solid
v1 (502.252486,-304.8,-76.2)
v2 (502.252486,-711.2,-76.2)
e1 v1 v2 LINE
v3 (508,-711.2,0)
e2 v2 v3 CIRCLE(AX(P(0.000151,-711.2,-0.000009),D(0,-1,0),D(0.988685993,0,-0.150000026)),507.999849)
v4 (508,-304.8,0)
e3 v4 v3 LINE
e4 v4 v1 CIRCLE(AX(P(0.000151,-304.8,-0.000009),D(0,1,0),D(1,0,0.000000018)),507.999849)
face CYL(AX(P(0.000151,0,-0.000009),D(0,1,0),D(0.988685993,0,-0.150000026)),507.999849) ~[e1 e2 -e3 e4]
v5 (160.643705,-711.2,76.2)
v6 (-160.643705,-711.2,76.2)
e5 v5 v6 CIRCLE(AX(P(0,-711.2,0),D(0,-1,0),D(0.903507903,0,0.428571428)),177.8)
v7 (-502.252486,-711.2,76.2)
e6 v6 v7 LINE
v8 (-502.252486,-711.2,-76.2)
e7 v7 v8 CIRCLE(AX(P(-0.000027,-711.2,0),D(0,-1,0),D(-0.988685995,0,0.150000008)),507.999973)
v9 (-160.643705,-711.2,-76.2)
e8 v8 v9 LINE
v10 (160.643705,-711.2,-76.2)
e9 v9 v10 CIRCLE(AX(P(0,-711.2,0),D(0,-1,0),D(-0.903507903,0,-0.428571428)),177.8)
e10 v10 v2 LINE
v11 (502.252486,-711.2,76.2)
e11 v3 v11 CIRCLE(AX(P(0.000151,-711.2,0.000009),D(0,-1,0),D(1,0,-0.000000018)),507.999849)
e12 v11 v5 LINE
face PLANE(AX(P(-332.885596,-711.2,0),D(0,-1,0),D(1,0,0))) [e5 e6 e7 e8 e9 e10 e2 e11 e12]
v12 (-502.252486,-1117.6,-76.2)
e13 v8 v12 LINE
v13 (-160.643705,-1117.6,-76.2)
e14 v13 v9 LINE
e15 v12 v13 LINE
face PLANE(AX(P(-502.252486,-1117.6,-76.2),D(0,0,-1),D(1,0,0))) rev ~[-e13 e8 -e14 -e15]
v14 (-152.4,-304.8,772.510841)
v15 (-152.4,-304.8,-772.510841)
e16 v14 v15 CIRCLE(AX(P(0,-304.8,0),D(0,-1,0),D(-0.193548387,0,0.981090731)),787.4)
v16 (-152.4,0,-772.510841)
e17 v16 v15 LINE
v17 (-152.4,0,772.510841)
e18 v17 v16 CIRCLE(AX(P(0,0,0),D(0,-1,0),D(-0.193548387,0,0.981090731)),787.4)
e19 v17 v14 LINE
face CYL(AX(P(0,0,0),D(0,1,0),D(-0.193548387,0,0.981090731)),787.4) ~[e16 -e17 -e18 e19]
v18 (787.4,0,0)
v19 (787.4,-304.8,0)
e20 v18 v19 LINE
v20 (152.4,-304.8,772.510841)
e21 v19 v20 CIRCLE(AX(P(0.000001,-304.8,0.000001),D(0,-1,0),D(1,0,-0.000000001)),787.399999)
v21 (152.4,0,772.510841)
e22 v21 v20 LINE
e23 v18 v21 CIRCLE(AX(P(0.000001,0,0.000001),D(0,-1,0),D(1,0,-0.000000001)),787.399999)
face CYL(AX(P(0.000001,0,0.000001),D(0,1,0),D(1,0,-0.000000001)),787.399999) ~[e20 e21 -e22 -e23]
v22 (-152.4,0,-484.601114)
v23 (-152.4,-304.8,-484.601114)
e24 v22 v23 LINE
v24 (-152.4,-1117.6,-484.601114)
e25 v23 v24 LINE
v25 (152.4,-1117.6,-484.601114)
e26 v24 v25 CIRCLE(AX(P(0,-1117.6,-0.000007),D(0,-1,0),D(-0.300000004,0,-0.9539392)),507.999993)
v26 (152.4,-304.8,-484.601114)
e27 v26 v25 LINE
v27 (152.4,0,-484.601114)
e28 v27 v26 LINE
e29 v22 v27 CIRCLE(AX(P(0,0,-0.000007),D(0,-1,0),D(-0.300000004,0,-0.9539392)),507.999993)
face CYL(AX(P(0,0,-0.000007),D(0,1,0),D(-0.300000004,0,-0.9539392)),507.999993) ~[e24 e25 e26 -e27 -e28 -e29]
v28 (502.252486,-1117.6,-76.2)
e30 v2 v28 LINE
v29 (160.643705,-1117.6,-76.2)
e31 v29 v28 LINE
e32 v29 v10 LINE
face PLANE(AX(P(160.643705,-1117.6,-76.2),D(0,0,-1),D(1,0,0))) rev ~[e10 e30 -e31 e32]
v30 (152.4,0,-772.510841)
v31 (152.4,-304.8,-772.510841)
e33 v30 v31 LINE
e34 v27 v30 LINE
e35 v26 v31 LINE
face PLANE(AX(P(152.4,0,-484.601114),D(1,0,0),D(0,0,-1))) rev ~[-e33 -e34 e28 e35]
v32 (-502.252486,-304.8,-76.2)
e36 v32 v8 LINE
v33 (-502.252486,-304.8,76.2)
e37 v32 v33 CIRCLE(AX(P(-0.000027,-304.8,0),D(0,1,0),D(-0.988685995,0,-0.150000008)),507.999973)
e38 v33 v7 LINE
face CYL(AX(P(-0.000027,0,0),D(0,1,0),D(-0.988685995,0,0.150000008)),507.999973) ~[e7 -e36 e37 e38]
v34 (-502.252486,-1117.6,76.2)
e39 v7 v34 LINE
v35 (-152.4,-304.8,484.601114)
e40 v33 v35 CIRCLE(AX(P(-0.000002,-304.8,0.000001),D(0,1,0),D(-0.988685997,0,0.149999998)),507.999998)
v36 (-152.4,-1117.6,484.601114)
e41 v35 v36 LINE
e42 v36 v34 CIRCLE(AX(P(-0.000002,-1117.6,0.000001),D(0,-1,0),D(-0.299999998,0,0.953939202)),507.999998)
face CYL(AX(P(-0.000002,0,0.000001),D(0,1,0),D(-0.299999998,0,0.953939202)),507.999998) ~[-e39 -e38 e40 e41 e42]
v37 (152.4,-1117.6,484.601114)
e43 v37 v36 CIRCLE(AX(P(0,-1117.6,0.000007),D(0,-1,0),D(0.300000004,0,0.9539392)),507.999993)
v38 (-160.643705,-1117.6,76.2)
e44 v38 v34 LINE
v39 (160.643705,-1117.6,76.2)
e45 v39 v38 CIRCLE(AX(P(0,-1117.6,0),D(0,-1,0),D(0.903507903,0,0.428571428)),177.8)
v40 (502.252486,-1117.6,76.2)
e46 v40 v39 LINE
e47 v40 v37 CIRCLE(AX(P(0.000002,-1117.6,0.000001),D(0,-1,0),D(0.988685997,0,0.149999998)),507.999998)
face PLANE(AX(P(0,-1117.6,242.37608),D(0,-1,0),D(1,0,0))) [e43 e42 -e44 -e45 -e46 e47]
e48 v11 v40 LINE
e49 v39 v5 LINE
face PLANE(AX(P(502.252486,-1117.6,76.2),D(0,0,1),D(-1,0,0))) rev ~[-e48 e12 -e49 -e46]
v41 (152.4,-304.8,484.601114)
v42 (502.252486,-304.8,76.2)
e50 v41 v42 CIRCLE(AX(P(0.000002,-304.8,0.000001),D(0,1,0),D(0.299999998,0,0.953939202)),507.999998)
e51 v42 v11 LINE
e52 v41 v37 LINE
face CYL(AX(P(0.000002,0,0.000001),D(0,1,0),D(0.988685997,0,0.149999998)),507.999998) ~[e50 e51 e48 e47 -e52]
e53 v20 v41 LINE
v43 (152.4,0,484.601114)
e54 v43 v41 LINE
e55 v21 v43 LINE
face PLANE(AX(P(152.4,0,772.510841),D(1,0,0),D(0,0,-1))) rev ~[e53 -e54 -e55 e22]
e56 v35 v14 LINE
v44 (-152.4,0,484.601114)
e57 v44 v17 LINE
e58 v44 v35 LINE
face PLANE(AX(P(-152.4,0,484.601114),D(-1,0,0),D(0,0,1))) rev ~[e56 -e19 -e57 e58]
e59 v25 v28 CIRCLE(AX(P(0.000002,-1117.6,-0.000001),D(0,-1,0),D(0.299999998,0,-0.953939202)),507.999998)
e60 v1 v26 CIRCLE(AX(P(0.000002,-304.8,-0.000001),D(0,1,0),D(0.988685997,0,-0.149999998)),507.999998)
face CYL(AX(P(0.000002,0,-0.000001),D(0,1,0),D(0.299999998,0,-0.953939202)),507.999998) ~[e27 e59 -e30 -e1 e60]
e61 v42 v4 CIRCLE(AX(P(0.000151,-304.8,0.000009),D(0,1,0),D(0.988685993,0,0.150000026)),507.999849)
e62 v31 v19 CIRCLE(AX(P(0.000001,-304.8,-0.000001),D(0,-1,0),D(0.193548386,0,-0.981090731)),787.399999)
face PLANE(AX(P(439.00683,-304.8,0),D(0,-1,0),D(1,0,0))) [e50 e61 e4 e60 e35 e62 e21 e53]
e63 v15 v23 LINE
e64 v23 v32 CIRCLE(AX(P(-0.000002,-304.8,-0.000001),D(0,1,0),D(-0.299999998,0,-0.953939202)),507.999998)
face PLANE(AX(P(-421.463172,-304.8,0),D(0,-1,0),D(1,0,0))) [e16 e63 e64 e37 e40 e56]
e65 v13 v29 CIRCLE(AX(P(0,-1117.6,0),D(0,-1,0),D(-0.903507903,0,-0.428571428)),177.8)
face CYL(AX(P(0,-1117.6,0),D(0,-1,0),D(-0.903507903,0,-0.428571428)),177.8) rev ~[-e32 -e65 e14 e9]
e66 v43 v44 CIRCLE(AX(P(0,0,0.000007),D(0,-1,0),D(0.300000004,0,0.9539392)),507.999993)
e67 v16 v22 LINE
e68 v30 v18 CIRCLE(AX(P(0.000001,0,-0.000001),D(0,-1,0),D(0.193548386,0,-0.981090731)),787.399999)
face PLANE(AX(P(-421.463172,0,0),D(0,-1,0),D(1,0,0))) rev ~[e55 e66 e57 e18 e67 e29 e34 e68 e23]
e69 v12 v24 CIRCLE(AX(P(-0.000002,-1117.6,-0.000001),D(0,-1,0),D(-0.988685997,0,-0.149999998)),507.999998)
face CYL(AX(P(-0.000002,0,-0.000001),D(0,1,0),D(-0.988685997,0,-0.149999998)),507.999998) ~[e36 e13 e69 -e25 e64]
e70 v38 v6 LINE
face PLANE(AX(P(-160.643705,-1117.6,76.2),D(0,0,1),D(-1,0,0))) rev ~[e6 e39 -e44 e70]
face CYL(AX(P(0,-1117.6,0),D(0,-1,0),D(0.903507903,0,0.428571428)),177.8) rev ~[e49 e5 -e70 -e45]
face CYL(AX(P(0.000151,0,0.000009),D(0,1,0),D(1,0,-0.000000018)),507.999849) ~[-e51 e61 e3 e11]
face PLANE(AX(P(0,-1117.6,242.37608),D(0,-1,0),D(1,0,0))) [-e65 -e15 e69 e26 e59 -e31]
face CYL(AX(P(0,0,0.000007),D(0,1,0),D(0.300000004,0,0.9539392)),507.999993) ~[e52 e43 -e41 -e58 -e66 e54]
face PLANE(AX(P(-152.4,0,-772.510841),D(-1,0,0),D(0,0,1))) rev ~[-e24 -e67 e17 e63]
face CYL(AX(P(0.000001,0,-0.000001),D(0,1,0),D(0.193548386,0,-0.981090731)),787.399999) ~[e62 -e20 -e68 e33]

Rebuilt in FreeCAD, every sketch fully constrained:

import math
import FreeCAD as App
import Part
import Sketcher

V = App.Vector
Q = App.Units.Quantity

doc = App.newDocument("Part")
body = doc.addObject("PartDesign::Body", "Body")

# Sketch on XZ plane
sketch1 = body.newObject("Sketcher::SketchObject", "Sketch")
sketch1.AttachmentSupport = (doc.getObject("XZ_Plane"), [""])
sketch1.MapMode = "FlatFace"
sketch1.addGeometry([
    Part.ArcOfCircle(Part.Circle(V(0, 0, 0), V(0, 0, 1), 508), math.radians(9), math.radians(73)),  # 0
    Part.ArcOfCircle(Part.Circle(V(0, 0, 0), V(0, 0, 1), 508), math.radians(73), math.radians(107)),  # 1
    Part.ArcOfCircle(Part.Circle(V(0, 0, 0), V(0, 0, 1), 508), math.radians(107), math.radians(171)),  # 2
    Part.ArcOfCircle(Part.Circle(V(0, 0, 0), V(0, 0, 1), 508), math.radians(171.37), math.radians(188.63)),  # 3
    Part.ArcOfCircle(Part.Circle(V(0, 0, 0), V(0, 0, 1), 508), math.radians(-171), math.radians(-107)),  # 4
    Part.ArcOfCircle(Part.Circle(V(0, 0, 0), V(0, 0, 1), 508), math.radians(-107), math.radians(-73)),  # 5
    Part.ArcOfCircle(Part.Circle(V(0, 0, 0), V(0, 0, 1), 508), math.radians(-73), math.radians(-9)),  # 6
    Part.ArcOfCircle(Part.Circle(V(0, 0, 0), V(0, 0, 1), 508), math.radians(-8.63), math.radians(0)),  # 7
    Part.ArcOfCircle(Part.Circle(V(0, 0, 0), V(0, 0, 1), 508), math.radians(0), math.radians(8.63)),  # 8
], False)
sketch1.addConstraint([
    Sketcher.Constraint("Coincident", 0, 2, 1, 1),
    Sketcher.Constraint("Coincident", 1, 2, 2, 1),
    Sketcher.Constraint("Coincident", 2, 2, 3, 1),
    Sketcher.Constraint("Coincident", 3, 2, 4, 1),
    Sketcher.Constraint("Coincident", 4, 2, 5, 1),
    Sketcher.Constraint("Coincident", 5, 2, 6, 1),
    Sketcher.Constraint("Coincident", 6, 2, 7, 1),
    Sketcher.Constraint("Coincident", 7, 2, 8, 1),
    Sketcher.Constraint("Coincident", 8, 2, 0, 1),
    Sketcher.Constraint("Coincident", 0, 3, -1, 1),
    Sketcher.Constraint("Coincident", 1, 3, -1, 1),
    Sketcher.Constraint("Coincident", 2, 3, -1, 1),
    Sketcher.Constraint("Coincident", 4, 3, -1, 1),
    Sketcher.Constraint("Coincident", 5, 3, -1, 1),
    Sketcher.Constraint("Coincident", 6, 3, -1, 1),
    Sketcher.Constraint("Equal", 2, 4),
    Sketcher.Constraint("Equal", 7, 8),
    Sketcher.Constraint("PointOnObject", 7, 2, -1),
    Sketcher.Constraint("Horizontal", 0, 2, 1, 2),
    Sketcher.Constraint("Horizontal", 4, 2, 5, 2),
    Sketcher.Constraint("Horizontal", 3, 2, 6, 2),
    Sketcher.Constraint("Horizontal", 2, 2, 8, 2),
    Sketcher.Constraint("Vertical", 2, 2, 3, 2),
    Sketcher.Constraint("Vertical", 1, 2, 4, 2),
    Sketcher.Constraint("Radius", 0, Q("19.9999999 in")),
    Sketcher.Constraint("DistanceX", -1, 1, 0, 2, Q("6 in")),
    Sketcher.Constraint("DistanceY", -1, 1, 2, 2, Q("3 in")),
    Sketcher.Constraint("DistanceX", -1, 1, 7, 2, Q("20 in")),
    Sketcher.Constraint("Radius", 7, 507.999849),
    Sketcher.Constraint("Radius", 3, 507.999973),
])
pad1 = body.newObject("PartDesign::Pad", "Pad")
pad1.Profile = sketch1
pad1.Length = Q("44 in")

# Sketch on XZ plane
sketch2 = body.newObject("Sketcher::SketchObject", "Sketch001")
sketch2.AttachmentSupport = (doc.getObject("XZ_Plane"), [""])
sketch2.MapMode = "FlatFace"
sketch2.addGeometry([
    Part.LineSegment(V(-152, 485, 0), V(-152, 773, 0)),  # 0
    Part.ArcOfCircle(Part.Circle(V(0, 0, 0), V(0, 0, 1), 787), math.radians(101), math.radians(259)),  # 1
    Part.LineSegment(V(-152, -773, 0), V(-152, -485, 0)),  # 2
    Part.ArcOfCircle(Part.Circle(V(0, 0, 0), V(0, 0, 1), 508), math.radians(-171), math.radians(-107)),  # 3
    Part.ArcOfCircle(Part.Circle(V(0, 0, 0), V(0, 0, 1), 508), math.radians(171.37), math.radians(188.63)),  # 4
    Part.ArcOfCircle(Part.Circle(V(0, 0, 0), V(0, 0, 1), 508), math.radians(107), math.radians(171)),  # 5
    Part.ArcOfCircle(Part.Circle(V(0, 0, 0), V(0, 0, 1), 787), math.radians(-79), math.radians(0)),  # 6
    Part.ArcOfCircle(Part.Circle(V(0, 0, 0), V(0, 0, 1), 787), math.radians(0), math.radians(79)),  # 7
    Part.LineSegment(V(152, 773, 0), V(152, 485, 0)),  # 8
    Part.ArcOfCircle(Part.Circle(V(0, 0, 0), V(0, 0, 1), 508), math.radians(9), math.radians(73)),  # 9
    Part.ArcOfCircle(Part.Circle(V(0, 0, 0), V(0, 0, 1), 508), math.radians(0), math.radians(8.63)),  # 10
    Part.ArcOfCircle(Part.Circle(V(0, 0, 0), V(0, 0, 1), 508), math.radians(-8.63), math.radians(0)),  # 11
    Part.ArcOfCircle(Part.Circle(V(0, 0, 0), V(0, 0, 1), 508), math.radians(-73), math.radians(-9)),  # 12
    Part.LineSegment(V(152, -485, 0), V(152, -773, 0)),  # 13
], False)
sketch2.addConstraint([
    Sketcher.Constraint("Coincident", 0, 2, 1, 1),
    Sketcher.Constraint("Coincident", 1, 2, 2, 1),
    Sketcher.Constraint("Coincident", 2, 2, 3, 2),
    Sketcher.Constraint("Coincident", 3, 1, 4, 2),
    Sketcher.Constraint("Coincident", 4, 1, 5, 2),
    Sketcher.Constraint("Coincident", 5, 1, 0, 1),
    Sketcher.Constraint("Coincident", 6, 2, 7, 1),
    Sketcher.Constraint("Coincident", 7, 2, 8, 1),
    Sketcher.Constraint("Coincident", 8, 2, 9, 2),
    Sketcher.Constraint("Coincident", 9, 1, 10, 2),
    Sketcher.Constraint("Coincident", 10, 1, 11, 2),
    Sketcher.Constraint("Coincident", 11, 1, 12, 2),
    Sketcher.Constraint("Coincident", 12, 1, 13, 1),
    Sketcher.Constraint("Coincident", 13, 2, 6, 1),
    Sketcher.Constraint("Vertical", 0),
    Sketcher.Constraint("Vertical", 2),
    Sketcher.Constraint("Vertical", 8),
    Sketcher.Constraint("Vertical", 13),
    Sketcher.Constraint("Coincident", 1, 3, -1, 1),
    Sketcher.Constraint("Coincident", 3, 3, -1, 1),
    Sketcher.Constraint("Coincident", 5, 3, -1, 1),
    Sketcher.Constraint("Coincident", 6, 3, -1, 1),
    Sketcher.Constraint("Coincident", 7, 3, -1, 1),
    Sketcher.Constraint("Coincident", 9, 3, -1, 1),
    Sketcher.Constraint("Coincident", 12, 3, -1, 1),
    Sketcher.Constraint("Equal", 3, 5),
    Sketcher.Constraint("Equal", 1, 6),
    Sketcher.Constraint("Equal", 5, 9),
    Sketcher.Constraint("Equal", 10, 11),
    Sketcher.Constraint("Equal", 9, 12),
    Sketcher.Constraint("PointOnObject", 6, 2, -1),
    Sketcher.Constraint("PointOnObject", 10, 1, -1),
    Sketcher.Constraint("Horizontal", 4, 1, 9, 1),
    Sketcher.Constraint("Horizontal", 3, 1, 11, 1),
    Sketcher.Constraint("Vertical", 3, 1, 4, 1),
    Sketcher.Constraint("Equal", 0, 2),
    Sketcher.Constraint("Equal", 2, 8),
    Sketcher.Constraint("Equal", 8, 13),
    Sketcher.Constraint("Radius", 1, Q("31 in")),
    Sketcher.Constraint("Radius", 3, Q("19.9999999 in")),
    Sketcher.Constraint("DistanceX", 0, 2, -1, 1, Q("6 in")),
    Sketcher.Constraint("DistanceY", 3, 1, -1, 1, Q("3 in")),
    Sketcher.Constraint("DistanceX", -1, 1, 10, 1, Q("20 in")),
    Sketcher.Constraint("Radius", 10, 507.999849),
    Sketcher.Constraint("Radius", 4, 507.999973),
])
pad2 = body.newObject("PartDesign::Pad", "Pad001")
pad2.Profile = sketch2
pad2.Length = Q("12 in")

# Sketch on XZ plane
sketch3 = body.newObject("Sketcher::SketchObject", "Sketch002")
sketch3.AttachmentSupport = (doc.getObject("XZ_Plane"), [""])
sketch3.MapMode = "FlatFace"
sketch3.AttachmentOffset = App.Placement(V(0, 0, 44 * 25.4), App.Rotation())
sketch3.addGeometry([
    Part.LineSegment(V(-161, 76, 0), V(-502, 76, 0)),  # 0
    Part.ArcOfCircle(Part.Circle(V(0, 0, 0), V(0, 0, 1), 508), math.radians(171.37), math.radians(188.63)),  # 1
    Part.LineSegment(V(-502, -76, 0), V(-161, -76, 0)),  # 2
    Part.ArcOfCircle(Part.Circle(V(0, 0, 0), V(0, 0, 1), 178), math.radians(-155), math.radians(-25)),  # 3
    Part.LineSegment(V(161, -76, 0), V(502, -76, 0)),  # 4
    Part.ArcOfCircle(Part.Circle(V(0, 0, 0), V(0, 0, 1), 508), math.radians(-8.63), math.radians(0)),  # 5
    Part.ArcOfCircle(Part.Circle(V(0, 0, 0), V(0, 0, 1), 508), math.radians(0), math.radians(8.63)),  # 6
    Part.LineSegment(V(502, 76, 0), V(161, 76, 0)),  # 7
    Part.ArcOfCircle(Part.Circle(V(0, 0, 0), V(0, 0, 1), 178), math.radians(25), math.radians(155)),  # 8
], False)
sketch3.addConstraint([
    Sketcher.Constraint("Coincident", 0, 2, 1, 1),
    Sketcher.Constraint("Coincident", 1, 2, 2, 1),
    Sketcher.Constraint("Coincident", 2, 2, 3, 1),
    Sketcher.Constraint("Coincident", 3, 2, 4, 1),
    Sketcher.Constraint("Coincident", 4, 2, 5, 1),
    Sketcher.Constraint("Coincident", 5, 2, 6, 1),
    Sketcher.Constraint("Coincident", 6, 2, 7, 1),
    Sketcher.Constraint("Coincident", 7, 2, 8, 1),
    Sketcher.Constraint("Coincident", 8, 2, 0, 1),
    Sketcher.Constraint("Horizontal", 0),
    Sketcher.Constraint("Horizontal", 2),
    Sketcher.Constraint("Horizontal", 4),
    Sketcher.Constraint("Horizontal", 7),
    Sketcher.Constraint("Coincident", 3, 3, -1, 1),
    Sketcher.Constraint("Coincident", 8, 3, -1, 1),
    Sketcher.Constraint("Equal", 5, 6),
    Sketcher.Constraint("Equal", 3, 8),
    Sketcher.Constraint("Symmetric", 0, 2, 4, 2, -1, 1),
    Sketcher.Constraint("PointOnObject", 1, 3, -1),
    Sketcher.Constraint("PointOnObject", 5, 2, -1),
    Sketcher.Constraint("Horizontal", 2, 2, 3, 2),
    Sketcher.Constraint("Horizontal", 7, 2, 8, 2),
    Sketcher.Constraint("Vertical", 4, 2, 6, 2),
    Sketcher.Constraint("Radius", 3, Q("7 in")),
    Sketcher.Constraint("DistanceY", -1, 1, 0, 2, Q("3 in")),
    Sketcher.Constraint("DistanceX", -1, 1, 5, 2, Q("20 in")),
    Sketcher.Constraint("Radius", 5, 507.999849),
    Sketcher.Constraint("Radius", 1, 507.999973),
    Sketcher.Constraint("DistanceX", 0, 2, 0, 1, 341.608781),
])
pocket1 = body.newObject("PartDesign::Pocket", "Pocket")
pocket1.Profile = sketch3
pocket1.Length = Q("16 in")

doc.recompute()
